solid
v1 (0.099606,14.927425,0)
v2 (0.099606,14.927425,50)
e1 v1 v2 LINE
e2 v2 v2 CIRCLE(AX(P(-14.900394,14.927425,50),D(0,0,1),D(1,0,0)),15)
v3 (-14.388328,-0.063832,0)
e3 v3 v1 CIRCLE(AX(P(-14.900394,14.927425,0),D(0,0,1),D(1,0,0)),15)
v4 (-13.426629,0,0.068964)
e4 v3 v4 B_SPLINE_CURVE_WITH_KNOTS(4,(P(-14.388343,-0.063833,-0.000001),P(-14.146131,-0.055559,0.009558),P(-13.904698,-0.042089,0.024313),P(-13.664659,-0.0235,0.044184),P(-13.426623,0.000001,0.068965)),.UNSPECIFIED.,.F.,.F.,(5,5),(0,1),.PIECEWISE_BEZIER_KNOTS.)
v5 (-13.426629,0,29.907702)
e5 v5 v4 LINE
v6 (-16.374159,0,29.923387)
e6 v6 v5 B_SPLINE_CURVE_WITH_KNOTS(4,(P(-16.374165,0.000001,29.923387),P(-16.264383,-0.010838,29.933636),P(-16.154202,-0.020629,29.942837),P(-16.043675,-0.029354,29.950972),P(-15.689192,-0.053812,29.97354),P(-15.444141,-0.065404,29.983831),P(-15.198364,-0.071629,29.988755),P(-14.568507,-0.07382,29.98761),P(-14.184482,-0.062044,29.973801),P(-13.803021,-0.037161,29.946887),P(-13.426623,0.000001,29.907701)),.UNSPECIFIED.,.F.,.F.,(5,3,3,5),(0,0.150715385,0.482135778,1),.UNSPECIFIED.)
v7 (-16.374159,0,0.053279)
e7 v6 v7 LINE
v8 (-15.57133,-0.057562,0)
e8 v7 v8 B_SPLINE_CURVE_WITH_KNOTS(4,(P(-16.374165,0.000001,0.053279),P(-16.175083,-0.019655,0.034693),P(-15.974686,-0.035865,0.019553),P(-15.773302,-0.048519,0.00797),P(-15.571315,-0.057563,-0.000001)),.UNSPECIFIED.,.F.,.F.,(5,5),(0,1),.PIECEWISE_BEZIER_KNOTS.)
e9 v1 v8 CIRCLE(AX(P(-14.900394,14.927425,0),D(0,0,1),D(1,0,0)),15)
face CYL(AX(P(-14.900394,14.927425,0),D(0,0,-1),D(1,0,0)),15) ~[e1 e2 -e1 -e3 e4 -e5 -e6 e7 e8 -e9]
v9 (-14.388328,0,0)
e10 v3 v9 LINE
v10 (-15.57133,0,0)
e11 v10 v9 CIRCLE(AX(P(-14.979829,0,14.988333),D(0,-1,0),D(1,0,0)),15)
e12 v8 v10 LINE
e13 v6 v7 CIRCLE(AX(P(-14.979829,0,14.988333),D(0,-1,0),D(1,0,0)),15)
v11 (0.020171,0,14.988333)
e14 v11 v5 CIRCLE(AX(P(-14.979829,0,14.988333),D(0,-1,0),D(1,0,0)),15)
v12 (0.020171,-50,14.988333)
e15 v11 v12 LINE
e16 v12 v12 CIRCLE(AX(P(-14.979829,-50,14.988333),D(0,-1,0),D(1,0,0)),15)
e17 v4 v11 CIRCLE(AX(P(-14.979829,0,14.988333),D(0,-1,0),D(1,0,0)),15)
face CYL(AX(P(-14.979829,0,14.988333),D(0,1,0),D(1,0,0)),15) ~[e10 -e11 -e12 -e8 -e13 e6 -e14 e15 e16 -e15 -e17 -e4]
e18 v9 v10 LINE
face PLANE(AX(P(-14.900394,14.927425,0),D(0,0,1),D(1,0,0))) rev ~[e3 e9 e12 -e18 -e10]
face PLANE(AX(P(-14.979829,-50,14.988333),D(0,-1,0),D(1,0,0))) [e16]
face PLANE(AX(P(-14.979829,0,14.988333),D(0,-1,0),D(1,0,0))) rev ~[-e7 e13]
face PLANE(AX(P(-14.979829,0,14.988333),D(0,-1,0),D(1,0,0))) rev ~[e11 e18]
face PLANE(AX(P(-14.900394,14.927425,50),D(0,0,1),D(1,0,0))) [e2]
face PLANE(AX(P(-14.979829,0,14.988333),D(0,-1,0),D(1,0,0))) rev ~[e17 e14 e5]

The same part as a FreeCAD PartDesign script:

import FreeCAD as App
import Part
import Sketcher

doc = App.newDocument("Part")
body = doc.addObject("PartDesign::Body", "Body")

sketch1 = body.newObject("Sketcher::SketchObject", "Sketch")
sketch1.AttachmentSupport = (doc.getObject("XZ_Plane"), [""])
sketch1.MapMode = "FlatFace"
sketch1.addGeometry(Part.Circle(App.Vector(-15, 15, 0), App.Vector(0, 0, 1), 15), False)
sketch1.addConstraint([
    Sketcher.Constraint("Diameter", 0, 30.0),
    Sketcher.Constraint("DistanceX", 0, 3, -1, 1, 14.979829),
    Sketcher.Constraint("DistanceY", -1, 1, 0, 3, 14.988333),
])
pad1 = body.newObject("PartDesign::Pad", "Pad")
pad1.Profile = sketch1
pad1.Length = 50

sketch2 = body.newObject("Sketcher::SketchObject", "Sketch001")
sketch2.AttachmentSupport = (doc.getObject("XY_Plane"), [""])
sketch2.MapMode = "FlatFace"
sketch2.addGeometry(Part.Circle(App.Vector(-15, 15, 0), App.Vector(0, 0, 1), 15), False)
sketch2.addConstraint([
    Sketcher.Constraint("Diameter", 0, 30.0),
    Sketcher.Constraint("DistanceX", 0, 3, -1, 1, 14.900394),
    Sketcher.Constraint("DistanceY", -1, 1, 0, 3, 14.927425),
])
pad2 = body.newObject("PartDesign::Pad", "Pad001")
pad2.Profile = sketch2
pad2.Length = 50

doc.recompute()
